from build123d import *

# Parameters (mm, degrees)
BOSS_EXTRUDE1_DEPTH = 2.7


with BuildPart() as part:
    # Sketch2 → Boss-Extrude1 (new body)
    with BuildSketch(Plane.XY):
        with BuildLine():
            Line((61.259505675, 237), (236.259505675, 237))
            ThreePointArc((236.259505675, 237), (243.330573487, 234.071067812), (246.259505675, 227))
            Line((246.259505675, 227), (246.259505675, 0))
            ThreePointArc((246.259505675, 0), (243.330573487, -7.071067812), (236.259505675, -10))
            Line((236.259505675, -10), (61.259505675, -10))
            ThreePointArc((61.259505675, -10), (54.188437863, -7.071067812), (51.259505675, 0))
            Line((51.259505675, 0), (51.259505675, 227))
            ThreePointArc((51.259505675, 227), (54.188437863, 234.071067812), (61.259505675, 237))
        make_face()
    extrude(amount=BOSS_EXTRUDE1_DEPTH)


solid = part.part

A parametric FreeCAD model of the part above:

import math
import FreeCAD as App
import Part
import Sketcher
from FreeCAD import Vector
Q = App.Units.Quantity

doc = App.newDocument("Part")
body = doc.addObject("PartDesign::Body", "Body")

sketch1 = body.newObject("Sketcher::SketchObject", "Sketch")
sketch1.AttachmentSupport = (doc.getObject("XY_Plane"), [""])
sketch1.MapMode = "FlatFace"
sketch1.addGeometry([
    Part.LineSegment(Vector(236, 237, 0), Vector(61, 237, 0)),
    Part.ArcOfCircle(Part.Circle(Vector(61, 227, 0), Vector(0, 0, 1), 10), math.radians(90), math.radians(180)),
    Part.LineSegment(Vector(51, 227, 0), Vector(51, 0, 0)),
    Part.ArcOfCircle(Part.Circle(Vector(61, 0, 0), Vector(0, 0, 1), 10), math.radians(180), math.radians(270)),
    Part.LineSegment(Vector(61, -10, 0), Vector(236, -10, 0)),
    Part.ArcOfCircle(Part.Circle(Vector(236, 0, 0), Vector(0, 0, 1), 10), math.radians(-90), math.radians(0)),
    Part.LineSegment(Vector(246, 0, 0), Vector(246, 227, 0)),
    Part.ArcOfCircle(Part.Circle(Vector(236, 227, 0), Vector(0, 0, 1), 10), math.radians(0), math.radians(90)),
], False)
sketch1.addConstraint([
    Sketcher.Constraint("Tangent", 0, 2, 1, 1),
    Sketcher.Constraint("Tangent", 1, 2, 2, 1),
    Sketcher.Constraint("Tangent", 2, 2, 3, 1),
    Sketcher.Constraint("Tangent", 3, 2, 4, 1),
    Sketcher.Constraint("Tangent", 4, 2, 5, 1),
    Sketcher.Constraint("Tangent", 5, 2, 6, 1),
    Sketcher.Constraint("Tangent", 6, 2, 7, 1),
    Sketcher.Constraint("Tangent", 7, 2, 0, 1),
    Sketcher.Constraint("Horizontal", 0),
    Sketcher.Constraint("Vertical", 2),
    Sketcher.Constraint("Horizontal", 4),
    Sketcher.Constraint("Vertical", 6),
    Sketcher.Constraint("Equal", 1, 3),
    Sketcher.Constraint("Equal", 3, 5),
    Sketcher.Constraint("Equal", 5, 7),
    Sketcher.Constraint("PointOnObject", 3, 3, -1),
    Sketcher.Constraint("Radius", 1, Q("10 mm")),
    Sketcher.Constraint("DistanceX", 0, 2, 0, 1, Q("175 mm")),
    Sketcher.Constraint("DistanceY", 2, 2, 2, 1, Q("227 mm")),
    Sketcher.Constraint("DistanceX", -1, 1, 1, 3, Q("61.259506 mm")),
])
pad1 = body.newObject("PartDesign::Pad", "Pad")
pad1.Profile = sketch1
pad1.Length = 2.7

doc.recompute()
